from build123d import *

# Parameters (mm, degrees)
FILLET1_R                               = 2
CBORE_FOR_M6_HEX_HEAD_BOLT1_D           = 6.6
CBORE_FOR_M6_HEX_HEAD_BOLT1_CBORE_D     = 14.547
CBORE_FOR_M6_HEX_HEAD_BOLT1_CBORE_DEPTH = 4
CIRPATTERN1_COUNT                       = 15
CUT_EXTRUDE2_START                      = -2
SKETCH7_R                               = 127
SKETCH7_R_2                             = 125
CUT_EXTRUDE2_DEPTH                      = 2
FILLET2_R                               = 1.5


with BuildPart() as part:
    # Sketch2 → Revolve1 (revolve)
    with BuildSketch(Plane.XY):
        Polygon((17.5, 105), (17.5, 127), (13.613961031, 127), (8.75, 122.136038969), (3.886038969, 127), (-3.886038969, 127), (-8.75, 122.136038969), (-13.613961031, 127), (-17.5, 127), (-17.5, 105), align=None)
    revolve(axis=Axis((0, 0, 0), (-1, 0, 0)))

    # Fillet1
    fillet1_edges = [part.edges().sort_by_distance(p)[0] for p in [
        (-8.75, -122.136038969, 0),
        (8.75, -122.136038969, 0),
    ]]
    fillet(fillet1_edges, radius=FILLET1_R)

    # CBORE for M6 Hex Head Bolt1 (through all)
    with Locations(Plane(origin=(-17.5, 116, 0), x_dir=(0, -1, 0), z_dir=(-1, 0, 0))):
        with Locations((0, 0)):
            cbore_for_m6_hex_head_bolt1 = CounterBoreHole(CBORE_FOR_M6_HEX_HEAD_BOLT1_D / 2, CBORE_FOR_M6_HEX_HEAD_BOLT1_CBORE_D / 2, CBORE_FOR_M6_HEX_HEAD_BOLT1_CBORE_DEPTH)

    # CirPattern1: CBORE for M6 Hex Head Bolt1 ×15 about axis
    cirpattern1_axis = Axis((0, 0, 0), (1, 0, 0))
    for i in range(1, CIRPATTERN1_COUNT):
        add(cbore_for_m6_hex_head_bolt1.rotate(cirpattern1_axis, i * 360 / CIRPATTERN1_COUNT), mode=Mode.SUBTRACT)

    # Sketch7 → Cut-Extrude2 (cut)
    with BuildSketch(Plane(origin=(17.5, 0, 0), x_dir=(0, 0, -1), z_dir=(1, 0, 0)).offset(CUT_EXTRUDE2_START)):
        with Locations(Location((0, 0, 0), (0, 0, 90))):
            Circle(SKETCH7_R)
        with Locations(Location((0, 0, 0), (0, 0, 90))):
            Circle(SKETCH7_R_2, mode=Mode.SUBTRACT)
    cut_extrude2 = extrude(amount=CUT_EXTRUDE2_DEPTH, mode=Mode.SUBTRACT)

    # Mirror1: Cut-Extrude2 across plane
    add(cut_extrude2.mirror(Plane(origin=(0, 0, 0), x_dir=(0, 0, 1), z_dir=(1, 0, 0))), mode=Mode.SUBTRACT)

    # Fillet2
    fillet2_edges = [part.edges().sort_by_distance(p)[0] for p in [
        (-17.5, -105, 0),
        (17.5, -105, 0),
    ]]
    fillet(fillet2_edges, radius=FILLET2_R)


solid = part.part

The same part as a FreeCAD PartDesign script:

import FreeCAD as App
import Part
import Sketcher
from FreeCAD import Vector


def edges_at(feature, points):
    """Names of the edges that pass closest to the given points."""
    edges = feature.Shape.Edges
    near = lambda p: min(range(len(edges)), key=lambda i: edges[i].distToShape(Part.Vertex(*p))[0])
    return sorted({f"Edge{near(p) + 1}" for p in points})

doc = App.newDocument("Part")
body = doc.addObject("PartDesign::Body", "Body")

sketch1 = doc.addObject("Sketcher::SketchObject", "Sketch")
body.addObject(sketch1)
sketch1.AttachmentSupport = (doc.XY_Plane, [""])
sketch1.MapMode = "FlatFace"
sketch1.addGeometry([
    Part.LineSegment(Vector(17.5, 105, 0), Vector(17.5, 127, 0)),
    Part.LineSegment(Vector(17.5, 127, 0), Vector(13.6, 127, 0)),
    Part.LineSegment(Vector(13.6, 127, 0), Vector(8.8, 122.1, 0)),
    Part.LineSegment(Vector(8.8, 122.1, 0), Vector(3.9, 127, 0)),
    Part.LineSegment(Vector(3.9, 127, 0), Vector(-3.9, 127, 0)),
    Part.LineSegment(Vector(-3.9, 127, 0), Vector(-8.8, 122.1, 0)),
    Part.LineSegment(Vector(-8.8, 122.1, 0), Vector(-13.6, 127, 0)),
    Part.LineSegment(Vector(-13.6, 127, 0), Vector(-17.5, 127, 0)),
    Part.LineSegment(Vector(-17.5, 127, 0), Vector(-17.5, 105, 0)),
    Part.LineSegment(Vector(-17.5, 105, 0), Vector(17.5, 105, 0)),
], False)
sketch1.addConstraint([
    Sketcher.Constraint("Coincident", 0, 2, 1, 1),
    Sketcher.Constraint("Coincident", 1, 2, 2, 1),
    Sketcher.Constraint("Coincident", 2, 2, 3, 1),
    Sketcher.Constraint("Coincident", 3, 2, 4, 1),
    Sketcher.Constraint("Coincident", 4, 2, 5, 1),
    Sketcher.Constraint("Coincident", 5, 2, 6, 1),
    Sketcher.Constraint("Coincident", 6, 2, 7, 1),
    Sketcher.Constraint("Coincident", 7, 2, 8, 1),
    Sketcher.Constraint("Coincident", 8, 2, 9, 1),
    Sketcher.Constraint("Coincident", 9, 2, 0, 1),
    Sketcher.Constraint("Vertical", 0),
    Sketcher.Constraint("Horizontal", 1),
    Sketcher.Constraint("Horizontal", 4),
    Sketcher.Constraint("Horizontal", 7),
    Sketcher.Constraint("Vertical", 8),
    Sketcher.Constraint("Horizontal", 9),
    Sketcher.Constraint("Symmetric", 2, 2, 5, 2, -2),
    Sketcher.Constraint("Symmetric", 1, 2, 6, 2, -2),
    Sketcher.Constraint("Perpendicular", 2, 3),
    Sketcher.Constraint("Perpendicular", 3, 5),
    Sketcher.Constraint("Perpendicular", 5, 6),
    Sketcher.Constraint("Horizontal", 1, 2, 3, 2),
    Sketcher.Constraint("Equal", 1, 7),
    Sketcher.Constraint("DistanceX", 9, 1, 9, 2, 35.0),
    Sketcher.Constraint("DistanceY", 0, 1, 0, 2, 22.0),
    Sketcher.Constraint("DistanceY", -1, 1, 0, 2, 127.0),
    Sketcher.Constraint("DistanceX", 4, 2, 1, 2, 17.5),
    Sketcher.Constraint("DistanceX", 1, 2, 1, 1, 3.886039),
])
revolution = doc.addObject("PartDesign::Revolution", "Revolution")
body.addObject(revolution)
revolution.Profile = sketch1
revolution.ReferenceAxis = (sketch1, ["H_Axis"])
revolution.Angle = 360
doc.recompute()

fillet = doc.addObject("PartDesign::Fillet", "Fillet")
body.addObject(fillet)
fillet.Base = (revolution, edges_at(revolution, [(-8.75, -122.136, 0), (8.75, -122.136, 0)]))
fillet.Radius = 2

sketch2 = doc.addObject("Sketcher::SketchObject", "Sketch001")
body.addObject(sketch2)
sketch2.AttachmentSupport = (doc.YZ_Plane, [""])
sketch2.MapMode = "FlatFace"
sketch2.AttachmentOffset = App.Placement(Vector(0, 0, -17.5), App.Rotation())
sketch2.addGeometry(Part.Circle(Vector(116, 0, 0), Vector(0, 0, 1), 3.3), False)
sketch2.addConstraint([
    Sketcher.Constraint("PointOnObject", 0, 3, -1),
    Sketcher.Constraint("Diameter", 0, 6.6),
    Sketcher.Constraint("DistanceX", -1, 1, 0, 3, 116.0),
])
doc.recompute()
hole = doc.addObject("PartDesign::Hole", "Hole")
body.addObject(hole)
hole.Profile = sketch2
hole.ThreadType = "None"
hole.Diameter = 6.6
hole.DepthType = "ThroughAll"
hole.HoleCutType = "Counterbore"
hole.HoleCutDiameter = 14.547
hole.HoleCutDepth = 4
hole.Reversed = True
doc.recompute()

polarpattern = doc.addObject("PartDesign::PolarPattern", "PolarPattern")
body.addObject(polarpattern)
polarpattern.Originals = [hole]
polarpattern.Axis = (doc.X_Axis, [""])
polarpattern.Angle = 360
polarpattern.Occurrences = 15
body.Tip = polarpattern

sketch3 = doc.addObject("Sketcher::SketchObject", "Sketch002")
body.addObject(sketch3)
sketch3.AttachmentSupport = (doc.YZ_Plane, [""])
sketch3.MapMode = "FlatFace"
sketch3.AttachmentOffset = App.Placement(Vector(0, 0, 15.5), App.Rotation())
sketch3.addGeometry([
    Part.Circle(Vector(0, 0, 0), Vector(0, 0, 1), 127),
    Part.Circle(Vector(0, 0, 0), Vector(0, 0, 1), 125),
], False)
sketch3.addConstraint([
    Sketcher.Constraint("Coincident", 0, 3, -1, 1),
    Sketcher.Constraint("Coincident", 1, 3, -1, 1),
    Sketcher.Constraint("Diameter", 0, 254.0),
    Sketcher.Constraint("Diameter", 1, 250.0),
])
pocket1 = doc.addObject("PartDesign::Pocket", "Pocket")
body.addObject(pocket1)
pocket1.Profile = sketch3
pocket1.Length = 2
pocket1.Reversed = True
doc.recompute()

mirrored = doc.addObject("PartDesign::Mirrored", "Mirrored")
body.addObject(mirrored)
mirrored.Originals = [pocket1]
mirrored.MirrorPlane = (doc.YZ_Plane, [""])
body.Tip = mirrored
doc.recompute()

fillet2 = doc.addObject("PartDesign::Fillet", "Fillet001")
body.addObject(fillet2)
fillet2.Base = (mirrored, edges_at(mirrored, [(-17.5, -105, 0), (17.5, -105, 0)]))
fillet2.Radius = 1.5

doc.recompute()
